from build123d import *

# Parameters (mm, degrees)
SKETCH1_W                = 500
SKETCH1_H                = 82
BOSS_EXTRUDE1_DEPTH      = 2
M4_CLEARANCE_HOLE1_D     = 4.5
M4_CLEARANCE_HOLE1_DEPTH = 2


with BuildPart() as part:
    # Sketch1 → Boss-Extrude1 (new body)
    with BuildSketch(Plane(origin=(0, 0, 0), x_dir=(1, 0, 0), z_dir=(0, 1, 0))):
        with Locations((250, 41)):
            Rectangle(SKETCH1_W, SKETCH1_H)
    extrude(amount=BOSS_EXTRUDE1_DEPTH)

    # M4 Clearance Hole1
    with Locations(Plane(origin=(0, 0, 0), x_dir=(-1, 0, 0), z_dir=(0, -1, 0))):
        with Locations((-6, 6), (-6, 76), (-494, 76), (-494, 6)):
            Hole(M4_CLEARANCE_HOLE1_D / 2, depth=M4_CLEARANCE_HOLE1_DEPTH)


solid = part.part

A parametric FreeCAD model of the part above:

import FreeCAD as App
import Part
import Sketcher
Q = App.Units.Quantity


def add_polygon(sketch, points):
    """Adds a closed chain of lines whose ends are joined by coincident constraints."""
    first, n = sketch.GeometryCount, len(points)
    for a, b in zip(points, points[1:] + points[:1]):
        sketch.addGeometry(Part.LineSegment(App.Vector(*a, 0), App.Vector(*b, 0)), False)
    for i in range(n):
        sketch.addConstraint(Sketcher.Constraint("Coincident", first + i, 2, first + (i + 1) % n, 1))

doc = App.newDocument("Part")
body = doc.addObject("PartDesign::Body", "Body")

# Sketch on XZ plane
sketch1 = body.newObject("Sketcher::SketchObject", "Sketch")
sketch1.AttachmentSupport = (doc.getObject("XZ_Plane"), [""])
sketch1.MapMode = "FlatFace"
add_polygon(sketch1, [(0, -82), (0, 0), (500, 0), (500, -82)])  # lines 0-3
sketch1.addConstraint([
    Sketcher.Constraint("Vertical", 0),
    Sketcher.Constraint("Horizontal", 1),
    Sketcher.Constraint("Vertical", 2),
    Sketcher.Constraint("Horizontal", 3),
    Sketcher.Constraint("Coincident", 0, 2, -1, 1),
    Sketcher.Constraint("DistanceX", 1, 1, 1, 2, Q("500 mm")),
    Sketcher.Constraint("DistanceY", 0, 1, 0, 2, Q("82 mm")),
])
pad1 = body.newObject("PartDesign::Pad", "Pad")
pad1.Profile = sketch1
pad1.Length = 2
pad1.Reversed = True

# Sketch on XZ plane
sketch2 = body.newObject("Sketcher::SketchObject", "Sketch001")
sketch2.AttachmentSupport = (doc.getObject("XZ_Plane"), [""])
sketch2.MapMode = "FlatFace"
sketch2.addGeometry([
    Part.Circle(App.Vector(6, -6, 0), App.Vector(0, 0, 1), 2.2),
    Part.Circle(App.Vector(6, -76, 0), App.Vector(0, 0, 1), 2.2),
    Part.Circle(App.Vector(494, -76, 0), App.Vector(0, 0, 1), 2.2),
    Part.Circle(App.Vector(494, -6, 0), App.Vector(0, 0, 1), 2.2),
], False)
sketch2.addConstraint([
    Sketcher.Constraint("Equal", 0, 1),
    Sketcher.Constraint("Equal", 1, 2),
    Sketcher.Constraint("Equal", 2, 3),
    Sketcher.Constraint("Horizontal", 1, 3, 2, 3),
    Sketcher.Constraint("Horizontal", 0, 3, 3, 3),
    Sketcher.Constraint("Vertical", 0, 3, 1, 3),
    Sketcher.Constraint("Vertical", 2, 3, 3, 3),
    Sketcher.Constraint("Diameter", 0, Q("4.5 mm")),
    Sketcher.Constraint("DistanceX", -1, 1, 0, 3, Q("6 mm")),
    Sketcher.Constraint("DistanceY", 0, 3, -1, 1, Q("6 mm")),
    Sketcher.Constraint("DistanceY", 1, 3, -1, 1, Q("76 mm")),
    Sketcher.Constraint("DistanceX", -1, 1, 2, 3, Q("494 mm")),
])
doc.recompute()
hole = body.newObject("PartDesign::Hole", "Hole")
hole.Profile = sketch2
hole.ThreadType = "None"
hole.Diameter = 4.5
hole.DepthType = "Dimension"
hole.Depth = 2
hole.DrillPoint = "Flat"

doc.recompute()
